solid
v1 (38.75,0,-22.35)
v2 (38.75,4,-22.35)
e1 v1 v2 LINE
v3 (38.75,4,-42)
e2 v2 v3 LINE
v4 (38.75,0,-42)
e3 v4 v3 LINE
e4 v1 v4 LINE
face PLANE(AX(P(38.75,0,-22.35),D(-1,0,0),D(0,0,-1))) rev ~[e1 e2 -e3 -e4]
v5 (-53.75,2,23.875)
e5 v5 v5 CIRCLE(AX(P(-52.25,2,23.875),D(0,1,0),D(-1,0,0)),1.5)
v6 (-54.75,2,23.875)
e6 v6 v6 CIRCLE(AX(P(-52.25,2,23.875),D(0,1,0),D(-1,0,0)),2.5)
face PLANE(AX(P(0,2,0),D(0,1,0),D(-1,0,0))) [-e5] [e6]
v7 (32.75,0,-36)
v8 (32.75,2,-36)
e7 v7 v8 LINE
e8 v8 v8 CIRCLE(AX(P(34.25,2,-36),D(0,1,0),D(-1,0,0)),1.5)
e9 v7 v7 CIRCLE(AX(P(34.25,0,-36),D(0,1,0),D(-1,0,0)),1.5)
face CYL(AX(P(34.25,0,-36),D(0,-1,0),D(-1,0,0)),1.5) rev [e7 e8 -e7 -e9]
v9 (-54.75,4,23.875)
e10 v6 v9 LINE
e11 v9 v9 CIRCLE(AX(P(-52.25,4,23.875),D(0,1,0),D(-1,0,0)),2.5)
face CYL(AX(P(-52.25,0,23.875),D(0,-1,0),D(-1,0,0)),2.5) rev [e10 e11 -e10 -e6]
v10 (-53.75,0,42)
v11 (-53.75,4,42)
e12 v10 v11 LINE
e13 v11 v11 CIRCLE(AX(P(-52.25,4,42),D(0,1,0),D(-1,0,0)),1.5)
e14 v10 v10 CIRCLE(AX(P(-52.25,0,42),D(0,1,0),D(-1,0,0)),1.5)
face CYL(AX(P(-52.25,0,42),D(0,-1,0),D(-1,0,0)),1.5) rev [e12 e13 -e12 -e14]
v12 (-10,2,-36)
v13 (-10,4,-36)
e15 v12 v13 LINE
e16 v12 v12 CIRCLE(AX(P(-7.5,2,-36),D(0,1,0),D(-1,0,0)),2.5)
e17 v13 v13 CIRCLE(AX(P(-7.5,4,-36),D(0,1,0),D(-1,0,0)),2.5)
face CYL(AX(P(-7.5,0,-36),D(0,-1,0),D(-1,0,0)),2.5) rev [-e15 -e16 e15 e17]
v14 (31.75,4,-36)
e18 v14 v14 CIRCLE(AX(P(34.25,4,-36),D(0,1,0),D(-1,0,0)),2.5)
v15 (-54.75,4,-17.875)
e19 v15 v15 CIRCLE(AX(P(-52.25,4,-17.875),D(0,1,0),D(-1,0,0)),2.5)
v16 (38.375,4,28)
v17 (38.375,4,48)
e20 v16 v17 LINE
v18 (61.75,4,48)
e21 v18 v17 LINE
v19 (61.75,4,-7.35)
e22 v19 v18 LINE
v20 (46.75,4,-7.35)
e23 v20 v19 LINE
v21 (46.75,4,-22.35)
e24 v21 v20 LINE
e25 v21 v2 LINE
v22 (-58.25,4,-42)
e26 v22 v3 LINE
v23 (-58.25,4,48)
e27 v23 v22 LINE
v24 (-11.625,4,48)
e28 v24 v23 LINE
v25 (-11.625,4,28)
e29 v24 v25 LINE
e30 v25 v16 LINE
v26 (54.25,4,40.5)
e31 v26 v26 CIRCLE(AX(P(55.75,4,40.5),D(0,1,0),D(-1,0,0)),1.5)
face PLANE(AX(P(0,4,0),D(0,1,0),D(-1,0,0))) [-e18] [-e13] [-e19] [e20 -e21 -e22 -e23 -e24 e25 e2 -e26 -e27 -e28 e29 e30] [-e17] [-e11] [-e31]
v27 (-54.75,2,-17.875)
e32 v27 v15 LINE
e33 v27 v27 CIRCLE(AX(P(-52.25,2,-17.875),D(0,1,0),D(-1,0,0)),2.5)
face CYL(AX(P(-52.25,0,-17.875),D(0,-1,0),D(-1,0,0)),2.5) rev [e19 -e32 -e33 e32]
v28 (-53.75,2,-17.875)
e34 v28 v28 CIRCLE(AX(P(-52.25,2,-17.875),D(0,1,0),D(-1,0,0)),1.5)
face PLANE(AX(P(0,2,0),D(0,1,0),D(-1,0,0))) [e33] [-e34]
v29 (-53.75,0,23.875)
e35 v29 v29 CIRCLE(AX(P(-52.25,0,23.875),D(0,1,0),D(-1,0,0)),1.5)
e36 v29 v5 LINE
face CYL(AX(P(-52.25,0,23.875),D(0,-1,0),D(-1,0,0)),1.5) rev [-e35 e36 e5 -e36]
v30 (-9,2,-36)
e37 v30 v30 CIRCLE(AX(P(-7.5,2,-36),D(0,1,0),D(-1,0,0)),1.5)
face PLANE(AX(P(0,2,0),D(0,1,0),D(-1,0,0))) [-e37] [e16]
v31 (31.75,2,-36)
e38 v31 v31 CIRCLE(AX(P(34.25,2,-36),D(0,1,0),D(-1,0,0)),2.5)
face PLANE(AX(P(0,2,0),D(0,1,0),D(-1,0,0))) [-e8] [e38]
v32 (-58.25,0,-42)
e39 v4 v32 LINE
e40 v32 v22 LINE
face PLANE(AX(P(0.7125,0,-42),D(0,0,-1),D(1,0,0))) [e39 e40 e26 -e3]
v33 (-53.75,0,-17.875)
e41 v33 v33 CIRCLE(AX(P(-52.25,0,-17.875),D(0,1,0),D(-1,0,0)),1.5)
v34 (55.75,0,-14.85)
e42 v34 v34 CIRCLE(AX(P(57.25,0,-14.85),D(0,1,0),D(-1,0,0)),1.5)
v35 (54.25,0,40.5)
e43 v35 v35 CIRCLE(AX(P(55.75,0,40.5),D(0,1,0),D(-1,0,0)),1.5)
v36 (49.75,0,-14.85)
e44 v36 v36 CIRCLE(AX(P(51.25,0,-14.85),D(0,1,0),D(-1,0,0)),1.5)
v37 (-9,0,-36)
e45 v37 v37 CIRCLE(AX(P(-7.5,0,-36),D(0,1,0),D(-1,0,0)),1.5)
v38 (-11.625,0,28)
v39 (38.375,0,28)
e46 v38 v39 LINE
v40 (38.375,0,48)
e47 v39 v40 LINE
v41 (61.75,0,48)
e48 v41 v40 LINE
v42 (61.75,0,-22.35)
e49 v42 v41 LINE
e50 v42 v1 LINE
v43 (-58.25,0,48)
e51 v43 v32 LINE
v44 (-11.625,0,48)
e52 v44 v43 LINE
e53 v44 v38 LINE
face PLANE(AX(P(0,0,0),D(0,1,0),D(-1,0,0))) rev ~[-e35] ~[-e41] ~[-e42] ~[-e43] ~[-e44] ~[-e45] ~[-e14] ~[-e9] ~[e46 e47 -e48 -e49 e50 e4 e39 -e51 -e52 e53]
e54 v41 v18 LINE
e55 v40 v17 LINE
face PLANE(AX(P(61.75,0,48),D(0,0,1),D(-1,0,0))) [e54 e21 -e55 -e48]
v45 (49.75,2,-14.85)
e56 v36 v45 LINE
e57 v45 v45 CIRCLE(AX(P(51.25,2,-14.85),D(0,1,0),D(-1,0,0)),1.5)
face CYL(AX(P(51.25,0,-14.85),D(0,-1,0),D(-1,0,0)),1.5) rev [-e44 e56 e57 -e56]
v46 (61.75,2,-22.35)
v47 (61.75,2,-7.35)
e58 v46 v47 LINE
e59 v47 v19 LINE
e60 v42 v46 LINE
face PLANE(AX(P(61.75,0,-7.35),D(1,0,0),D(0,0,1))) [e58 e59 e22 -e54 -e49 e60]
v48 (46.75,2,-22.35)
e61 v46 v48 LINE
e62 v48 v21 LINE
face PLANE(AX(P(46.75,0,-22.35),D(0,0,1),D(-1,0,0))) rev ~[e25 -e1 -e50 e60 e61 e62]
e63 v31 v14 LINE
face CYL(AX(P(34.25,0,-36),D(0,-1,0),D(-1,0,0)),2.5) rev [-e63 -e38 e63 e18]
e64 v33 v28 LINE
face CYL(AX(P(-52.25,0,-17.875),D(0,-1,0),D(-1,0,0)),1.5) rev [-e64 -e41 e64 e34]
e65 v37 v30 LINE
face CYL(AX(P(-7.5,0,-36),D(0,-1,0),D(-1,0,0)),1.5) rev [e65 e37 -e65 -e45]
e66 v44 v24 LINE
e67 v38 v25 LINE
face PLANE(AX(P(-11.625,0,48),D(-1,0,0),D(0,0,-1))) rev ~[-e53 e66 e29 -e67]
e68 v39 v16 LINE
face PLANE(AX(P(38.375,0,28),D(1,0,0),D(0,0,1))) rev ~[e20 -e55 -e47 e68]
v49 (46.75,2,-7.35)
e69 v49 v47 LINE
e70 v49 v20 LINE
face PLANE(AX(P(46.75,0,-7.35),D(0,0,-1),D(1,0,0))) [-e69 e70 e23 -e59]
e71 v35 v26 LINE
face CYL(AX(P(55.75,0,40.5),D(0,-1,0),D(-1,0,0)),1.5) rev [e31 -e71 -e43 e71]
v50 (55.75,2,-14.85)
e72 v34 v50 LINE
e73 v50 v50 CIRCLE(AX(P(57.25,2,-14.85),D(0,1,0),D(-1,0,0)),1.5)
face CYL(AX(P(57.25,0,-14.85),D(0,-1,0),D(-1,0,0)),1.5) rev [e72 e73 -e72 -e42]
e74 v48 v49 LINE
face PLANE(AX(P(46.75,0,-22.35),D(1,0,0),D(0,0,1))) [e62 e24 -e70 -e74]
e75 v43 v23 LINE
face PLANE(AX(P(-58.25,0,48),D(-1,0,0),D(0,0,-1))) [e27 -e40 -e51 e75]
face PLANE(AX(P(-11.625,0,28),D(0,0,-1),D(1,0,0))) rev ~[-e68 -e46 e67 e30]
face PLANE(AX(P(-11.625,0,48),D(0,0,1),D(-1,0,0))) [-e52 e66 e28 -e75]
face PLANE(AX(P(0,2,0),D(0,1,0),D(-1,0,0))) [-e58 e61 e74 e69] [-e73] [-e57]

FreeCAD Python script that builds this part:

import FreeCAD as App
import Part
import Sketcher
from FreeCAD import Vector


def add_polygon(sketch, points):
    """Adds a closed chain of lines whose ends are joined by coincident constraints."""
    first, n = sketch.GeometryCount, len(points)
    for a, b in zip(points, points[1:] + points[:1]):
        sketch.addGeometry(Part.LineSegment(App.Vector(*a, 0), App.Vector(*b, 0)), False)
    for i in range(n):
        sketch.addConstraint(Sketcher.Constraint("Coincident", first + i, 2, first + (i + 1) % n, 1))

doc = App.newDocument("Part")
params = doc.addObject("Spreadsheet::Sheet", "Params")
for row, (alias, value) in enumerate([
    ("sketch1_width", "8 mm"),
    ("sketch1_diameter", "5 mm"),
    ("sketch1_diameter2", "3 mm"),
    ("sketch1_width2", "97 mm"),
    ("sketch1_width3", "50 mm"),
    ("pad1_length", "4 mm"),
    ("sketch2_diameter", "3 mm"),
    ("sketch2_diameter2", "5 mm"),
    ("sketch2_width", "25 mm"),
    ("sketch2_width2", "30 mm"),
    ("sketch2_height", "20 mm"),
    ("pad2_length", "2 mm"),
], start=1):
    params.set(f"A{row}", alias)
    params.set(f"B{row}", "=" + value)
    params.setAlias(f"B{row}", alias)

body = doc.addObject("PartDesign::Body", "Body")

# Sketch on XZ plane
sketch1 = body.newObject("Sketcher::SketchObject", "Sketch")
sketch1.AttachmentSupport = (doc.getObject("XZ_Plane"), [""])
sketch1.MapMode = "FlatFace"
add_polygon(sketch1, [(38.8, -22.4), (38.8, -42), (-58.2, -42), (-58.2, 48), (-11.6, 48), (-11.6, 28), (38.4, 28), (38.4, 48), (61.8, 48), (61.8, -7.3), (46.8, -7.3), (46.8, -22.4)])  # lines 0-11
sketch1.addGeometry(Part.Circle(Vector(34.2, -36, 0), Vector(0, 0, 1), 2.5), False)  # 12
sketch1.addGeometry(Part.Circle(Vector(-7.5, -36, 0), Vector(0, 0, 1), 2.5), False)  # 13
sketch1.addGeometry(Part.Circle(Vector(-52.2, -17.9, 0), Vector(0, 0, 1), 2.5), False)  # 14
sketch1.addGeometry(Part.Circle(Vector(55.8, 40.5, 0), Vector(0, 0, 1), 1.5), False)  # 15
sketch1.addGeometry(Part.Circle(Vector(-52.2, 23.9, 0), Vector(0, 0, 1), 2.5), False)  # 16
sketch1.addGeometry(Part.Circle(Vector(-52.2, 42, 0), Vector(0, 0, 1), 1.5), False)  # 17
sketch1.addConstraint(Sketcher.Constraint("Vertical", 0))
sketch1.addConstraint(Sketcher.Constraint("Horizontal", 1))
sketch1.addConstraint(Sketcher.Constraint("Vertical", 2))
sketch1.addConstraint(Sketcher.Constraint("Horizontal", 3))
sketch1.addConstraint(Sketcher.Constraint("Vertical", 4))
sketch1.addConstraint(Sketcher.Constraint("Horizontal", 5))
sketch1.addConstraint(Sketcher.Constraint("Vertical", 6))
sketch1.addConstraint(Sketcher.Constraint("Horizontal", 7))
sketch1.addConstraint(Sketcher.Constraint("Vertical", 8))
sketch1.addConstraint(Sketcher.Constraint("Horizontal", 9))
sketch1.addConstraint(Sketcher.Constraint("Vertical", 10))
sketch1.addConstraint(Sketcher.Constraint("Horizontal", 11))
sketch1.addConstraint(Sketcher.Constraint("Equal", 12, 13))
sketch1.addConstraint(Sketcher.Constraint("Equal", 13, 14))
sketch1.addConstraint(Sketcher.Constraint("Equal", 14, 16))
sketch1.addConstraint(Sketcher.Constraint("Equal", 15, 17))
sketch1.addConstraint(Sketcher.Constraint("Horizontal", 12, 3, 13, 3))
sketch1.addConstraint(Sketcher.Constraint("Horizontal", 3, 2, 6, 2))
sketch1.addConstraint(Sketcher.Constraint("Vertical", 14, 3, 16, 3))
sketch1.addConstraint(Sketcher.Constraint("Vertical", 16, 3, 17, 3))
sketch1.addConstraint(Sketcher.Constraint("Equal", 9, 10))
sketch1.addConstraint(Sketcher.Constraint("DistanceX", 11, 2, 11, 1, 8.0))
sketch1.addConstraint(Sketcher.Constraint("Diameter", 12, 5.0))
sketch1.addConstraint(Sketcher.Constraint("Diameter", 15, 3.0))
sketch1.addConstraint(Sketcher.Constraint("DistanceX", 13, 3, -1, 1, 7.5))
sketch1.addConstraint(Sketcher.Constraint("DistanceY", 15, 3, 3, 2, 7.5))
sketch1.addConstraint(Sketcher.Constraint("DistanceX", 1, 2, 1, 1, 97.0))
sketch1.addConstraint(Sketcher.Constraint("DistanceX", 5, 1, 5, 2, 50.0))
sketch1.addConstraint(Sketcher.Constraint("DistanceX", 9, 2, 9, 1, 15.0))
sketch1.addConstraint(Sketcher.Constraint("DistanceY", 2, 1, 2, 2, 90.0))
sketch1.addConstraint(Sketcher.Constraint("DistanceY", 4, 2, 4, 1, 20.0))
sketch1.addConstraint(Sketcher.Constraint("DistanceY", 12, 3, -1, 1, 36.0))
sketch1.addConstraint(Sketcher.Constraint("DistanceY", -1, 1, 17, 3, 42.0))
sketch1.addConstraint(Sketcher.Constraint("DistanceY", 0, 2, -1, 1, 42.0))
sketch1.addConstraint(Sketcher.Constraint("DistanceX", 14, 3, 15, 3, 108.0))
sketch1.addConstraint(Sketcher.Constraint("DistanceX", 0, 2, 15, 3, 17.0))
sketch1.addConstraint(Sketcher.Constraint("DistanceY", 0, 2, 0, 1, 19.65))
sketch1.addConstraint(Sketcher.Constraint("DistanceX", 14, 3, 12, 3, 86.5))
sketch1.addConstraint(Sketcher.Constraint("DistanceX", 3, 1, 3, 2, 46.625))
sketch1.addConstraint(Sketcher.Constraint("DistanceX", -1, 1, 12, 3, 34.25))
sketch1.addConstraint(Sketcher.Constraint("DistanceY", 14, 3, 16, 3, 41.75))
sketch1.addConstraint(Sketcher.Constraint("DistanceY", 14, 3, -1, 1, 17.875))
sketch1.setExpression("Constraints[33]", "Params.sketch1_width")
sketch1.setExpression("Constraints[34]", "Params.sketch1_diameter")
sketch1.setExpression("Constraints[35]", "Params.sketch1_diameter2")
sketch1.setExpression("Constraints[38]", "Params.sketch1_width2")
sketch1.setExpression("Constraints[39]", "Params.sketch1_width3")
pad1 = body.newObject("PartDesign::Pad", "Pad")
pad1.Profile = sketch1
pad1.setExpression("Length", "Params.pad1_length")
pad1.Reversed = True

# Sketch on XZ plane
sketch2 = body.newObject("Sketcher::SketchObject", "Sketch001")
sketch2.AttachmentSupport = (doc.getObject("XZ_Plane"), [""])
sketch2.MapMode = "FlatFace"
add_polygon(sketch2, [(61.8, -7.3), (61.8, -22.4), (46.8, -22.4), (46.8, -7.3)])  # lines 0-3
sketch2.addGeometry(Part.Circle(Vector(57.2, -14.8, 0), Vector(0, 0, 1), 1.5), False)  # 4
sketch2.addGeometry(Part.Circle(Vector(51.2, -14.8, 0), Vector(0, 0, 1), 1.5), False)  # 5
add_polygon(sketch2, [(0.9, 3), (0.9, 23), (25.9, 23), (25.9, 3)])  # lines 6-9
sketch2.addGeometry(Part.Circle(Vector(19.4, 13, 0), Vector(0, 0, 1), 1.5), False)  # 10
sketch2.addGeometry(Part.Circle(Vector(7.4, 13, 0), Vector(0, 0, 1), 1.5), False)  # 11
add_polygon(sketch2, [(28.4, 0), (28.4, -30), (-1.6, -30), (-1.6, 0)])  # lines 12-15
sketch2.addGeometry(Part.Circle(Vector(20.9, -21, 0), Vector(0, 0, 1), 1.5), False)  # 16
sketch2.addGeometry(Part.Circle(Vector(20.9, -9, 0), Vector(0, 0, 1), 1.5), False)  # 17
sketch2.addGeometry(Part.Circle(Vector(5.9, -9, 0), Vector(0, 0, 1), 1.5), False)  # 18
sketch2.addGeometry(Part.Circle(Vector(5.9, -21, 0), Vector(0, 0, 1), 1.5), False)  # 19
sketch2.addGeometry(Part.Circle(Vector(-52.2, -17.9, 0), Vector(0, 0, 1), 2.5), False)  # 20
sketch2.addGeometry(Part.Circle(Vector(-52.2, -17.9, 0), Vector(0, 0, 1), 1.5), False)  # 21
sketch2.addGeometry(Part.Circle(Vector(-52.2, 23.9, 0), Vector(0, 0, 1), 2.5), False)  # 22
sketch2.addGeometry(Part.Circle(Vector(-52.2, 23.9, 0), Vector(0, 0, 1), 1.5), False)  # 23
sketch2.addGeometry(Part.Circle(Vector(34.2, -36, 0), Vector(0, 0, 1), 2.5), False)  # 24
sketch2.addGeometry(Part.Circle(Vector(34.2, -36, 0), Vector(0, 0, 1), 1.5), False)  # 25
sketch2.addGeometry(Part.Circle(Vector(-7.5, -36, 0), Vector(0, 0, 1), 2.5), False)  # 26
sketch2.addGeometry(Part.Circle(Vector(-7.5, -36, 0), Vector(0, 0, 1), 1.5), False)  # 27
sketch2.addConstraint(Sketcher.Constraint("Vertical", 0))
sketch2.addConstraint(Sketcher.Constraint("Horizontal", 1))
sketch2.addConstraint(Sketcher.Constraint("Vertical", 2))
sketch2.addConstraint(Sketcher.Constraint("Horizontal", 3))
sketch2.addConstraint(Sketcher.Constraint("Vertical", 6))
sketch2.addConstraint(Sketcher.Constraint("Horizontal", 7))
sketch2.addConstraint(Sketcher.Constraint("Vertical", 8))
sketch2.addConstraint(Sketcher.Constraint("Horizontal", 9))
sketch2.addConstraint(Sketcher.Constraint("Vertical", 12))
sketch2.addConstraint(Sketcher.Constraint("Horizontal", 13))
sketch2.addConstraint(Sketcher.Constraint("Vertical", 14))
sketch2.addConstraint(Sketcher.Constraint("Horizontal", 15))
sketch2.addConstraint(Sketcher.Constraint("Coincident", 21, 3, 20, 3))
sketch2.addConstraint(Sketcher.Constraint("Coincident", 23, 3, 22, 3))
sketch2.addConstraint(Sketcher.Constraint("Coincident", 25, 3, 24, 3))
sketch2.addConstraint(Sketcher.Constraint("Coincident", 27, 3, 26, 3))
sketch2.addConstraint(Sketcher.Constraint("Equal", 4, 5))
sketch2.addConstraint(Sketcher.Constraint("Equal", 5, 10))
sketch2.addConstraint(Sketcher.Constraint("Equal", 10, 11))
sketch2.addConstraint(Sketcher.Constraint("Equal", 11, 16))
sketch2.addConstraint(Sketcher.Constraint("Equal", 16, 17))
sketch2.addConstraint(Sketcher.Constraint("Equal", 17, 18))
sketch2.addConstraint(Sketcher.Constraint("Equal", 18, 19))
sketch2.addConstraint(Sketcher.Constraint("Equal", 19, 21))
sketch2.addConstraint(Sketcher.Constraint("Equal", 20, 22))
sketch2.addConstraint(Sketcher.Constraint("Equal", 21, 23))
sketch2.addConstraint(Sketcher.Constraint("Equal", 22, 24))
sketch2.addConstraint(Sketcher.Constraint("Equal", 23, 25))
sketch2.addConstraint(Sketcher.Constraint("Equal", 24, 26))
sketch2.addConstraint(Sketcher.Constraint("Equal", 25, 27))
sketch2.addConstraint(Sketcher.Constraint("PointOnObject", 14, 2, -1))
sketch2.addConstraint(Sketcher.Constraint("Horizontal", 4, 3, 5, 3))
sketch2.addConstraint(Sketcher.Constraint("Horizontal", 10, 3, 11, 3))
sketch2.addConstraint(Sketcher.Constraint("Horizontal", 17, 3, 18, 3))
sketch2.addConstraint(Sketcher.Constraint("Horizontal", 16, 3, 19, 3))
sketch2.addConstraint(Sketcher.Constraint("Horizontal", 25, 3, 26, 3))
sketch2.addConstraint(Sketcher.Constraint("Vertical", 16, 3, 17, 3))
sketch2.addConstraint(Sketcher.Constraint("Vertical", 18, 3, 19, 3))
sketch2.addConstraint(Sketcher.Constraint("Vertical", 21, 3, 22, 3))
sketch2.addConstraint(Sketcher.Constraint("Equal", 3, 0))
sketch2.addConstraint(Sketcher.Constraint("Equal", 15, 12))
sketch2.addConstraint(Sketcher.Constraint("Diameter", 4, 3.0))
sketch2.addConstraint(Sketcher.Constraint("Diameter", 20, 5.0))
sketch2.addConstraint(Sketcher.Constraint("DistanceX", 11, 3, 10, 3, 12.0))
sketch2.addConstraint(Sketcher.Constraint("DistanceY", 16, 3, 17, 3, 12.0))
sketch2.addConstraint(Sketcher.Constraint("DistanceY", 17, 3, 8, 2, 12.0))
sketch2.addConstraint(Sketcher.Constraint("DistanceX", 26, 3, -1, 1, 7.5))
sketch2.addConstraint(Sketcher.Constraint("DistanceY", 0, 2, 4, 3, 7.5))
sketch2.addConstraint(Sketcher.Constraint("DistanceY", 5, 3, 2, 2, 7.5))
sketch2.addConstraint(Sketcher.Constraint("DistanceX", 16, 3, 12, 2, 7.5))
sketch2.addConstraint(Sketcher.Constraint("DistanceX", 13, 2, 19, 3, 7.5))
sketch2.addConstraint(Sketcher.Constraint("DistanceX", 7, 1, 7, 2, 25.0))
sketch2.addConstraint(Sketcher.Constraint("DistanceX", 13, 2, 13, 1, 30.0))
sketch2.addConstraint(Sketcher.Constraint("DistanceY", 6, 1, 6, 2, 20.0))
sketch2.addConstraint(Sketcher.Constraint("DistanceY", -1, 1, 10, 3, 13.0))
sketch2.addConstraint(Sketcher.Constraint("DistanceY", 16, 3, -1, 1, 21.0))
sketch2.addConstraint(Sketcher.Constraint("DistanceY", 24, 3, -1, 1, 36.0))
sketch2.addConstraint(Sketcher.Constraint("DistanceX", 5, 3, 4, 3, 6.0))
sketch2.addConstraint(Sketcher.Constraint("DistanceX", 24, 3, 5, 3, 17.0))
sketch2.addConstraint(Sketcher.Constraint("DistanceX", 6, 2, 18, 3, 5.0))
sketch2.addConstraint(Sketcher.Constraint("DistanceX", 14, 2, 11, 3, 9.0))
sketch2.addConstraint(Sketcher.Constraint("DistanceX", 4, 3, 0, 2, 4.5))
sketch2.addConstraint(Sketcher.Constraint("DistanceX", -1, 1, 4, 3, 57.25))
sketch2.addConstraint(Sketcher.Constraint("DistanceY", 4, 3, -1, 1, 14.85))
sketch2.addConstraint(Sketcher.Constraint("DistanceX", 20, 3, -1, 1, 52.25))
sketch2.addConstraint(Sketcher.Constraint("DistanceY", 20, 3, 22, 3, 41.75))
sketch2.addConstraint(Sketcher.Constraint("DistanceX", -1, 1, 10, 3, 19.375))
sketch2.addConstraint(Sketcher.Constraint("DistanceY", 20, 3, -1, 1, 17.875))
sketch2.setExpression("Constraints[53]", "Params.sketch2_diameter")
sketch2.setExpression("Constraints[54]", "Params.sketch2_diameter2")
sketch2.setExpression("Constraints[63]", "Params.sketch2_width")
sketch2.setExpression("Constraints[64]", "Params.sketch2_width2")
sketch2.setExpression("Constraints[65]", "Params.sketch2_height")
pad2 = body.newObject("PartDesign::Pad", "Pad001")
pad2.Profile = sketch2
pad2.setExpression("Length", "Params.pad2_length")
pad2.Reversed = True

doc.recompute()
